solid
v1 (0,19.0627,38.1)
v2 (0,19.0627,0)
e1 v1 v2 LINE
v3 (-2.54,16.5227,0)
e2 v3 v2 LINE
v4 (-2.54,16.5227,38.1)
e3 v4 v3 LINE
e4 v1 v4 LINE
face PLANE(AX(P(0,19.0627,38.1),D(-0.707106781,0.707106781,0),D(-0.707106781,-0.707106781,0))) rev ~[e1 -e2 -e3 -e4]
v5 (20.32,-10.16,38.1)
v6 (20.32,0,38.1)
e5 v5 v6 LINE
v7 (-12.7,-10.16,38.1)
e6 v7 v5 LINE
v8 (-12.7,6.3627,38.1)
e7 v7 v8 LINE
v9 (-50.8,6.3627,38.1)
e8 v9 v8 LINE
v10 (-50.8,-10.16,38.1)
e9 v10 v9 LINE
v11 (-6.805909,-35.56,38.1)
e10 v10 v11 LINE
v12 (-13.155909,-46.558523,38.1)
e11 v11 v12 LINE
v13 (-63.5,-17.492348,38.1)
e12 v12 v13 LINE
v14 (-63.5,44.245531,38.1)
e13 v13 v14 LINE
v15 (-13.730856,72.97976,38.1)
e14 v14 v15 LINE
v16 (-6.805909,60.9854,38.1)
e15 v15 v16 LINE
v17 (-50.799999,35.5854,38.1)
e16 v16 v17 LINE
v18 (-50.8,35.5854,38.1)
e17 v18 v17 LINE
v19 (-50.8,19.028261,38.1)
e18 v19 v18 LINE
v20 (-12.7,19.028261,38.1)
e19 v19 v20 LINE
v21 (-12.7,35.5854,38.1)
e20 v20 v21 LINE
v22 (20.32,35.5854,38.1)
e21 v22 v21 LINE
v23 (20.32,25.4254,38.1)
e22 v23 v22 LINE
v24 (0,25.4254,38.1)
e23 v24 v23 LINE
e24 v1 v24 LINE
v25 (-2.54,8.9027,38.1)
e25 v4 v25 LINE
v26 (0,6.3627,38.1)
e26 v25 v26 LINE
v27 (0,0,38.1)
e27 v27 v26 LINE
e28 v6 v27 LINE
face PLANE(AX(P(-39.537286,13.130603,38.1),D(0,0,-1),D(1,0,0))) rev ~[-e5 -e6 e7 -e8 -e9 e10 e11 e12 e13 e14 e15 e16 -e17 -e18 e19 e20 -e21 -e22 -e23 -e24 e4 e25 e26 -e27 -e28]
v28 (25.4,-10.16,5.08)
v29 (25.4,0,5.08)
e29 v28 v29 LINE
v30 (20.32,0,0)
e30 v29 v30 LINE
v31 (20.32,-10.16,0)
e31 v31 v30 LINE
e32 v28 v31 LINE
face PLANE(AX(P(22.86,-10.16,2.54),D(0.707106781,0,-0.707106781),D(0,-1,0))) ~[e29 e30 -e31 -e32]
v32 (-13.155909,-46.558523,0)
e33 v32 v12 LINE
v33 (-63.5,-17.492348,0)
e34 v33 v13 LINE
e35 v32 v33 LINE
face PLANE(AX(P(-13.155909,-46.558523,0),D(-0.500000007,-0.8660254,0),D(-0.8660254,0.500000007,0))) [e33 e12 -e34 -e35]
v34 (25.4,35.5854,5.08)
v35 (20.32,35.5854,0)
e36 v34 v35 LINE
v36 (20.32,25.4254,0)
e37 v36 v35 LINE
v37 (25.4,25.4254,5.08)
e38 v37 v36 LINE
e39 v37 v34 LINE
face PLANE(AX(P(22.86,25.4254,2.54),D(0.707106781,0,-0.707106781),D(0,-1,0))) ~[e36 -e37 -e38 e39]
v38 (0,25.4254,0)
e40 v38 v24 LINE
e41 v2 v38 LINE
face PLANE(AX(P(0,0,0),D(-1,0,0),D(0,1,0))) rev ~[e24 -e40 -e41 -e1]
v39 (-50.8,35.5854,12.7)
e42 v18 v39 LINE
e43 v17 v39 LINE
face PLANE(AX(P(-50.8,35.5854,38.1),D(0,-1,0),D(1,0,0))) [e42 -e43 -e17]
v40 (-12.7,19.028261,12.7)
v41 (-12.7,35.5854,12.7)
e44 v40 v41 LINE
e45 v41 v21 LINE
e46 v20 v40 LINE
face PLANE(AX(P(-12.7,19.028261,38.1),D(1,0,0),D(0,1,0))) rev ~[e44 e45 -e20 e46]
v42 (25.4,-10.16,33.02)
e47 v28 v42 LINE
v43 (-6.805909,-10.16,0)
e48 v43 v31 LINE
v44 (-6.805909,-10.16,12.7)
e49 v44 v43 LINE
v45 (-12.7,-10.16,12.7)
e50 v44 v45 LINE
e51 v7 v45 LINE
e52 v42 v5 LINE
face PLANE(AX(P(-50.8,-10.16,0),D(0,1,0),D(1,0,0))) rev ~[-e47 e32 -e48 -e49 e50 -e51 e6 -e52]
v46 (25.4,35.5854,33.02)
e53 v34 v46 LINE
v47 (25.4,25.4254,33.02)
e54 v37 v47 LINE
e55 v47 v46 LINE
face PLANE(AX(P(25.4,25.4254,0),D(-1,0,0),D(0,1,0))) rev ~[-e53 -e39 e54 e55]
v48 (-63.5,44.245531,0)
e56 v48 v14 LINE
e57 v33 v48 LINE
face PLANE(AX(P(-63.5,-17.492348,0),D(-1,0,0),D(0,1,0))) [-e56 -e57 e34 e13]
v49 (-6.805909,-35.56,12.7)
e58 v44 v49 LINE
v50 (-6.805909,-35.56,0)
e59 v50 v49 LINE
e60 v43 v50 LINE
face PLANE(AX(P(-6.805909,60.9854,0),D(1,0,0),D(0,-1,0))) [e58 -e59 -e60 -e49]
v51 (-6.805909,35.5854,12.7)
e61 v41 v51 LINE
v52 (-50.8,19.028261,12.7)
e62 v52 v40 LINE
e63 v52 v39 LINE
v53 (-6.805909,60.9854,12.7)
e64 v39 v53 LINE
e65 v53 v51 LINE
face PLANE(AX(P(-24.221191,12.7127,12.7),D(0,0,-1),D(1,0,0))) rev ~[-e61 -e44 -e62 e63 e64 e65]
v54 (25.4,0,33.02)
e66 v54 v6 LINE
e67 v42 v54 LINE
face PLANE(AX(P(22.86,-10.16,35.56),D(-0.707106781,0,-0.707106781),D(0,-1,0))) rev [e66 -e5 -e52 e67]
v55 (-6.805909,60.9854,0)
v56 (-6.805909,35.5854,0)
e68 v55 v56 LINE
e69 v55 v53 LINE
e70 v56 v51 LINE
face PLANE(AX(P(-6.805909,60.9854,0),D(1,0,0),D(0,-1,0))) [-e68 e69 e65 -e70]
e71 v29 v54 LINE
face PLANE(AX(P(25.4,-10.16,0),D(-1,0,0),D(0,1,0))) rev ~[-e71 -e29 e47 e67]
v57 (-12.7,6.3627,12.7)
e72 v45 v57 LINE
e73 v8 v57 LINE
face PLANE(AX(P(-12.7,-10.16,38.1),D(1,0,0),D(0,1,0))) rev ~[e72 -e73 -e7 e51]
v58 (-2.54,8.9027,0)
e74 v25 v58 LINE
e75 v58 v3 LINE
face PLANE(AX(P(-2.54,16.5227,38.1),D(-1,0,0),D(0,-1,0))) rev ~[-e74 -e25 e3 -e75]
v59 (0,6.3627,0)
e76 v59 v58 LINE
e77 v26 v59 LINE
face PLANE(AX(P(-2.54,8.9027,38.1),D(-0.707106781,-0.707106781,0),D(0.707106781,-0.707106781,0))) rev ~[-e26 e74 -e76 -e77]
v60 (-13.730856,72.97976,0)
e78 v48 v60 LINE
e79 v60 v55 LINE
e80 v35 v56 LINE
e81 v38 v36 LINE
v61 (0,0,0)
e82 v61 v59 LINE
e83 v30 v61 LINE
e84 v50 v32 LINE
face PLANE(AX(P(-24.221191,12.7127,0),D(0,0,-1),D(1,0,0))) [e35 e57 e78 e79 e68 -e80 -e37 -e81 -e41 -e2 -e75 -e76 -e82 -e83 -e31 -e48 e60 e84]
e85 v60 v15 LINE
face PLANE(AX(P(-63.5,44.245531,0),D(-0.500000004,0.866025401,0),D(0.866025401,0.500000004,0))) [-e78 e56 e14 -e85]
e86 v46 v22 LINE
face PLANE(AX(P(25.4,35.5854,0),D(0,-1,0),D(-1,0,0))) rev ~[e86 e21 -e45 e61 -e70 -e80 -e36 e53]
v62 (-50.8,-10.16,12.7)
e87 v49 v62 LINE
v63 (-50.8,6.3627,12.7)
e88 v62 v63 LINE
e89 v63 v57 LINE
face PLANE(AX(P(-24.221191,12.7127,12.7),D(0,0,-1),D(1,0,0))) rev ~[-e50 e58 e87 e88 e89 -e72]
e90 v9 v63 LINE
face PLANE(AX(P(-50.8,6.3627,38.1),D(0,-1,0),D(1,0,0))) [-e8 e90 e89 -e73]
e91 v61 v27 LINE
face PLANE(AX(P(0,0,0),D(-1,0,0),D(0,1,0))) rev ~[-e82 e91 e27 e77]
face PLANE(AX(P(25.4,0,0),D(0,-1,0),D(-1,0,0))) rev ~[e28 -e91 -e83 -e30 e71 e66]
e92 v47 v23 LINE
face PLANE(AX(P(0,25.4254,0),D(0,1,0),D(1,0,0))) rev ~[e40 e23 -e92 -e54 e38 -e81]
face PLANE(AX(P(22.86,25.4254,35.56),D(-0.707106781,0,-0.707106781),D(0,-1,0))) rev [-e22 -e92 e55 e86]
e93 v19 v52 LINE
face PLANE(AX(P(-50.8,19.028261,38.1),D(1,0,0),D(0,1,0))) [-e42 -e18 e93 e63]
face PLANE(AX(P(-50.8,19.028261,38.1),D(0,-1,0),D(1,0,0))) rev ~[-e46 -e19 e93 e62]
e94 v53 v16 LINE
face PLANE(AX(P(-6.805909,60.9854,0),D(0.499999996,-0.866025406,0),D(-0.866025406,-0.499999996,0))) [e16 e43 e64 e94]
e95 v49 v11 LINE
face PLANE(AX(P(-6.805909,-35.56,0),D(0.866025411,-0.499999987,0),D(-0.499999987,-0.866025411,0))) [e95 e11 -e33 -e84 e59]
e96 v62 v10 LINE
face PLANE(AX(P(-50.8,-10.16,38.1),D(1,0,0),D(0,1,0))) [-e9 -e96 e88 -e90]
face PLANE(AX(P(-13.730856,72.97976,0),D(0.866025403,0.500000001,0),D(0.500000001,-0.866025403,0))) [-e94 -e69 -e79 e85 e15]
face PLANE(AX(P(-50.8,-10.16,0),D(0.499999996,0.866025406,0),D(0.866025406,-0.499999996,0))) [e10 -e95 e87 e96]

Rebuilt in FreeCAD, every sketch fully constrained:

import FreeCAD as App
import Part
import Sketcher

V = App.Vector
Q = App.Units.Quantity


def edges_at(feature, points):
    """Names of the edges that pass closest to the given points."""
    edges = feature.Shape.Edges
    near = lambda p: min(range(len(edges)), key=lambda i: edges[i].distToShape(Part.Vertex(*p))[0])
    return sorted({f"Edge{near(p) + 1}" for p in points})

doc = App.newDocument("Part")
params = doc.addObject("Spreadsheet::Sheet", "Params")
for row, (alias, value) in enumerate([
    ("sketch1_width", "1 in"),
    ("sketch1_width2", "3 in"),
    ("sketch1_height", "0.4 in"),
    ("sketch1_height2", "1.001 in"),
    ("pad1_length", "1.5 in"),
    ("chamfer_size", "0.2 in"),
    ("sketch2_length", "2 in"),
    ("sketch2_length2", "0.5 in"),
    ("sketch2_height", "1.801 in"),
    ("pad2_length", "1.5 in"),
    ("sketch3_length", "2 in"),
    ("sketch3_height", "3.801 in"),
    ("pad3_length", "0.5 in"),
    ("sketch4_width", "1.5 in"),
    ("pocket1_length", "1 in"),
    ("sketch5_height", "0.3 in"),
    ("sketch5_height2", "0.5 in"),
], start=1):
    params.set(f"A{row}", alias)
    params.set(f"B{row}", "=" + value)
    params.setAlias(f"B{row}", alias)

body = doc.addObject("PartDesign::Body", "Body")

sketch1 = doc.addObject("Sketcher::SketchObject", "Sketch")
body.addObject(sketch1)
sketch1.AttachmentSupport = (doc.XY_Plane, [""])
sketch1.MapMode = "FlatFace"
sketch1.addGeometry([
    Part.LineSegment(V(0, 0, 0), V(0, 25.4254, 0)),
    Part.LineSegment(V(0, 25.4254, 0), V(25.4, 25.4254, 0)),
    Part.LineSegment(V(25.4, 25.4254, 0), V(25.4, 35.5854, 0)),
    Part.LineSegment(V(25.4, 35.5854, 0), V(-50.8, 35.5854, 0)),
    Part.LineSegment(V(-50.8, 35.5854, 0), V(-50.8, -10.16, 0)),
    Part.LineSegment(V(-50.8, -10.16, 0), V(25.4, -10.16, 0)),
    Part.LineSegment(V(25.4, -10.16, 0), V(25.4, 0, 0)),
    Part.LineSegment(V(25.4, 0, 0), V(0, 0, 0)),
], False)
sketch1.addConstraint([
    Sketcher.Constraint("Coincident", 0, 2, 1, 1),
    Sketcher.Constraint("Coincident", 1, 2, 2, 1),
    Sketcher.Constraint("Coincident", 2, 2, 3, 1),
    Sketcher.Constraint("Coincident", 3, 2, 4, 1),
    Sketcher.Constraint("Coincident", 4, 2, 5, 1),
    Sketcher.Constraint("Coincident", 5, 2, 6, 1),
    Sketcher.Constraint("Coincident", 6, 2, 7, 1),
    Sketcher.Constraint("Coincident", 7, 2, 0, 1),
    Sketcher.Constraint("Vertical", 0),
    Sketcher.Constraint("Horizontal", 1),
    Sketcher.Constraint("Vertical", 2),
    Sketcher.Constraint("Horizontal", 3),
    Sketcher.Constraint("Vertical", 4),
    Sketcher.Constraint("Horizontal", 5),
    Sketcher.Constraint("Vertical", 6),
    Sketcher.Constraint("Horizontal", 7),
    Sketcher.Constraint("Coincident", 7, 2, -1, 1),
    Sketcher.Constraint("Vertical", 2, 2, 5, 2),
    Sketcher.Constraint("Equal", 2, 6),
    Sketcher.Constraint("DistanceX", 1, 1, 1, 2, Q("1 in")),
    Sketcher.Constraint("DistanceX", 3, 2, 3, 1, Q("3 in")),
    Sketcher.Constraint("DistanceY", 2, 1, 2, 2, Q("0.4 in")),
    Sketcher.Constraint("DistanceY", 0, 1, 0, 2, Q("1.001 in")),
])
sketch1.setExpression("Constraints[19]", "Params.sketch1_width")
sketch1.setExpression("Constraints[20]", "Params.sketch1_width2")
sketch1.setExpression("Constraints[21]", "Params.sketch1_height")
sketch1.setExpression("Constraints[22]", "Params.sketch1_height2")
pad1 = doc.addObject("PartDesign::Pad", "Pad")
body.addObject(pad1)
pad1.Profile = sketch1
pad1.setExpression("Length", "Params.pad1_length")
doc.recompute()

chamfer = doc.addObject("PartDesign::Chamfer", "Chamfer")
body.addObject(chamfer)
chamfer.Base = (pad1, edges_at(pad1, [
    (25.4, -5.08, 0),
    (25.4, 30.505, 0),
    (25.4, -5.08, 38.1),
    (25.4, 30.505, 38.1),
]))
chamfer.setExpression("Size", "Params.chamfer_size")

sketch2 = doc.addObject("Sketcher::SketchObject", "Sketch001")
body.addObject(sketch2)
sketch2.AttachmentSupport = (doc.XY_Plane, [""])
sketch2.MapMode = "FlatFace"
sketch2.addGeometry([
    Part.LineSegment(V(-50.8, 35.5854, 0), V(-50.8, -10.16, 0)),
    Part.LineSegment(V(-50.8, -10.16, 0), V(-6.805909, -35.56, 0)),
    Part.LineSegment(V(-6.805909, -35.56, 0), V(-13.155909, -46.558523, 0)),
    Part.LineSegment(V(-13.155909, -46.558523, 0), V(-63.5, -17.492348, 0)),
    Part.LineSegment(V(-63.5, -17.492348, 0), V(-63.5, 44.245531, 0)),
    Part.LineSegment(V(-63.5, 44.245531, 0), V(-13.730856, 72.97976, 0)),
    Part.LineSegment(V(-13.730856, 72.97976, 0), V(-6.805909, 60.9854, 0)),
    Part.LineSegment(V(-6.805909, 60.9854, 0), V(-50.8, 35.5854, 0)),
], False)
sketch2.addConstraint([
    Sketcher.Constraint("Coincident", 0, 2, 1, 1),
    Sketcher.Constraint("Coincident", 1, 2, 2, 1),
    Sketcher.Constraint("Coincident", 2, 2, 3, 1),
    Sketcher.Constraint("Coincident", 3, 2, 4, 1),
    Sketcher.Constraint("Coincident", 4, 2, 5, 1),
    Sketcher.Constraint("Coincident", 5, 2, 6, 1),
    Sketcher.Constraint("Coincident", 6, 2, 7, 1),
    Sketcher.Constraint("Coincident", 7, 2, 0, 1),
    Sketcher.Constraint("Vertical", 0),
    Sketcher.Constraint("Vertical", 4),
    Sketcher.Constraint("Perpendicular", 1, 2),
    Sketcher.Constraint("Perpendicular", 2, 3),
    Sketcher.Constraint("Perpendicular", 5, 6),
    Sketcher.Constraint("Perpendicular", 6, 7),
    Sketcher.Constraint("Vertical", 1, 2, 6, 2),
    Sketcher.Constraint("Equal", 1, 7),
    Sketcher.Constraint("Distance", 1, Q("2 in")),
    Sketcher.Constraint("DistanceX", 0, 2, -1, 1, Q("2 in")),
    Sketcher.Constraint("Angle", 1, Q("-30 deg")),
    Sketcher.Constraint("Distance", 2, Q("0.5 in")),
    Sketcher.Constraint("DistanceY", 0, 2, -1, 1, Q("0.4 in")),
    Sketcher.Constraint("DistanceX", 3, 2, -1, 1, Q("2.5 in")),
    Sketcher.Constraint("DistanceY", 0, 2, 0, 1, Q("1.801 in")),
    Sketcher.Constraint("DistanceY", 4, 1, 4, 2, 61.737879),
])
sketch2.setExpression("Constraints[16]", "Params.sketch2_length")
sketch2.setExpression("Constraints[19]", "Params.sketch2_length2")
sketch2.setExpression("Constraints[22]", "Params.sketch2_height")
pad2 = doc.addObject("PartDesign::Pad", "Pad001")
body.addObject(pad2)
pad2.Profile = sketch2
pad2.setExpression("Length", "Params.pad2_length")

sketch3 = doc.addObject("Sketcher::SketchObject", "Sketch002")
body.addObject(sketch3)
sketch3.AttachmentSupport = (doc.XY_Plane, [""])
sketch3.MapMode = "FlatFace"
sketch3.addGeometry([
    Part.LineSegment(V(-6.805909, 60.9854, 0), V(-6.805909, -35.56, 0)),
    Part.LineSegment(V(-6.805909, -35.56, 0), V(-50.8, -10.16, 0)),
    Part.LineSegment(V(-50.8, -10.16, 0), V(-50.8, 35.5854, 0)),
    Part.LineSegment(V(-50.8, 35.5854, 0), V(-6.805909, 60.9854, 0)),
], False)
sketch3.addConstraint([
    Sketcher.Constraint("Coincident", 0, 2, 1, 1),
    Sketcher.Constraint("Coincident", 1, 2, 2, 1),
    Sketcher.Constraint("Coincident", 2, 2, 3, 1),
    Sketcher.Constraint("Coincident", 3, 2, 0, 1),
    Sketcher.Constraint("Vertical", 0),
    Sketcher.Constraint("Vertical", 2),
    Sketcher.Constraint("Equal", 1, 3),
    Sketcher.Constraint("Distance", 1, Q("2 in")),
    Sketcher.Constraint("DistanceX", 1, 2, -1, 1, Q("2 in")),
    Sketcher.Constraint("Angle", 1, Q("150 deg")),
    Sketcher.Constraint("DistanceY", 0, 2, -1, 1, Q("1.4 in")),
    Sketcher.Constraint("DistanceY", 0, 2, 0, 1, Q("3.801 in")),
])
sketch3.setExpression("Constraints[7]", "Params.sketch3_length")
sketch3.setExpression("Constraints[11]", "Params.sketch3_height")
pad3 = doc.addObject("PartDesign::Pad", "Pad002")
body.addObject(pad3)
pad3.Profile = sketch3
pad3.setExpression("Length", "Params.pad3_length")

sketch4 = doc.addObject("Sketcher::SketchObject", "Sketch003")
body.addObject(sketch4)
sketch4.AttachmentSupport = (doc.XY_Plane, [""])
sketch4.MapMode = "FlatFace"
sketch4.AttachmentOffset = App.Placement(V(0, 0, 1.5 * 25.4), App.Rotation())
sketch4.addGeometry([
    Part.LineSegment(V(-50.8, 6.3627, 0), V(-50.8, -10.16, 0)),
    Part.LineSegment(V(-50.8, -10.16, 0), V(-12.7, -10.16, 0)),
    Part.LineSegment(V(-12.7, -10.16, 0), V(-12.7, 6.3627, 0)),
    Part.LineSegment(V(-12.7, 6.3627, 0), V(-50.8, 6.3627, 0)),
    Part.LineSegment(V(-50.8, 35.5854, 0), V(-50.8, 19.028261, 0)),
    Part.LineSegment(V(-50.8, 19.028261, 0), V(-12.7, 19.028261, 0)),
    Part.LineSegment(V(-12.7, 19.028261, 0), V(-12.7, 35.5854, 0)),
    Part.LineSegment(V(-12.7, 35.5854, 0), V(-50.8, 35.5854, 0)),
], False)
sketch4.addConstraint([
    Sketcher.Constraint("Coincident", 0, 2, 1, 1),
    Sketcher.Constraint("Coincident", 1, 2, 2, 1),
    Sketcher.Constraint("Coincident", 2, 2, 3, 1),
    Sketcher.Constraint("Coincident", 3, 2, 0, 1),
    Sketcher.Constraint("Coincident", 4, 2, 5, 1),
    Sketcher.Constraint("Coincident", 5, 2, 6, 1),
    Sketcher.Constraint("Coincident", 6, 2, 7, 1),
    Sketcher.Constraint("Coincident", 7, 2, 4, 1),
    Sketcher.Constraint("Vertical", 0),
    Sketcher.Constraint("Horizontal", 1),
    Sketcher.Constraint("Vertical", 2),
    Sketcher.Constraint("Horizontal", 3),
    Sketcher.Constraint("Vertical", 4),
    Sketcher.Constraint("Horizontal", 5),
    Sketcher.Constraint("Vertical", 6),
    Sketcher.Constraint("Horizontal", 7),
    Sketcher.Constraint("Vertical", 3, 2, 4, 2),
    Sketcher.Constraint("Vertical", 2, 2, 5, 2),
    Sketcher.Constraint("DistanceX", 1, 1, 1, 2, Q("1.5 in")),
    Sketcher.Constraint("DistanceX", 0, 2, -1, 1, Q("2 in")),
    Sketcher.Constraint("DistanceY", 0, 2, -1, 1, Q("0.4 in")),
    Sketcher.Constraint("DistanceY", 0, 2, 0, 1, Q("0.6505 in")),
    Sketcher.Constraint("DistanceY", -1, 1, 6, 2, Q("1.401 in")),
    Sketcher.Constraint("DistanceY", 4, 2, 4, 1, 16.557139),
])
sketch4.setExpression("Constraints[18]", "Params.sketch4_width")
pocket1 = doc.addObject("PartDesign::Pocket", "Pocket")
body.addObject(pocket1)
pocket1.Profile = sketch4
pocket1.setExpression("Length", "Params.pocket1_length")

sketch5 = doc.addObject("Sketcher::SketchObject", "Sketch004")
body.addObject(sketch5)
sketch5.AttachmentSupport = (doc.XY_Plane, [""])
sketch5.MapMode = "FlatFace"
sketch5.AttachmentOffset = App.Placement(V(0, 0, 1.5 * 25.4), App.Rotation())
sketch5.addGeometry([
    Part.LineSegment(V(-2.54, 16.5227, 0), V(-2.54, 8.9027, 0)),
    Part.LineSegment(V(-2.54, 8.9027, 0), V(0, 6.3627, 0)),
    Part.LineSegment(V(0, 6.3627, 0), V(0, 19.0627, 0)),
    Part.LineSegment(V(0, 19.0627, 0), V(-2.54, 16.5227, 0)),
], False)
sketch5.addConstraint([
    Sketcher.Constraint("Coincident", 0, 2, 1, 1),
    Sketcher.Constraint("Coincident", 1, 2, 2, 1),
    Sketcher.Constraint("Coincident", 2, 2, 3, 1),
    Sketcher.Constraint("Coincident", 3, 2, 0, 1),
    Sketcher.Constraint("Vertical", 0),
    Sketcher.Constraint("Vertical", 2),
    Sketcher.Constraint("PointOnObject", 1, 2, -2),
    Sketcher.Constraint("Perpendicular", 1, 3),
    Sketcher.Constraint("Equal", 1, 3),
    Sketcher.Constraint("DistanceY", 0, 2, 0, 1, Q("0.3 in")),
    Sketcher.Constraint("DistanceY", 2, 1, 2, 2, Q("0.5 in")),
    Sketcher.Constraint("DistanceY", -1, 1, 0, 2, Q("0.3505 in")),
])
sketch5.setExpression("Constraints[9]", "Params.sketch5_height")
sketch5.setExpression("Constraints[10]", "Params.sketch5_height2")
pocket2 = doc.addObject("PartDesign::Pocket", "Pocket001")
body.addObject(pocket2)
pocket2.Profile = sketch5
pocket2.Type = "ThroughAll"

doc.recompute()
